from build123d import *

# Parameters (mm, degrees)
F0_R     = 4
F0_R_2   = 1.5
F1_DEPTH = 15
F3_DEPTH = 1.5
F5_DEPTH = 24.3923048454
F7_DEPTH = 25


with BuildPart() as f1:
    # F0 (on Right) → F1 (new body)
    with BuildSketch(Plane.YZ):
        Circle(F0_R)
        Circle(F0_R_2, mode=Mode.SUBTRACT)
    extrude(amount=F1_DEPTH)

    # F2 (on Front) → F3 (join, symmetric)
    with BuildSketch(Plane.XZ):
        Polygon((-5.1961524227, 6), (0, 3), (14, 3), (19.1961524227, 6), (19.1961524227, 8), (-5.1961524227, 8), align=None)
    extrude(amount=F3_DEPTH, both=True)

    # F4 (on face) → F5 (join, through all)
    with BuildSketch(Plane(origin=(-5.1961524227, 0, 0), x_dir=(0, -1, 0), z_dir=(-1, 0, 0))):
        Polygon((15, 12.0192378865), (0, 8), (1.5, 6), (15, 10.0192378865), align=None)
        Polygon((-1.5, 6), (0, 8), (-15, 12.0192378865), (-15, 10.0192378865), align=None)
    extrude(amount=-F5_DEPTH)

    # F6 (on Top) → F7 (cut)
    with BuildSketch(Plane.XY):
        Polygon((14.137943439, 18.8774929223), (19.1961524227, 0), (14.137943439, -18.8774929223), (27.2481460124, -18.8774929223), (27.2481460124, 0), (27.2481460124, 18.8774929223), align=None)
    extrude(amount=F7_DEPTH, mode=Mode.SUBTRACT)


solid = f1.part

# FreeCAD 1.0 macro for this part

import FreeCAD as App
import Part
import Sketcher
Q = App.Units.Quantity


def add_polygon(sketch, points):
    """Adds a closed chain of lines whose ends are joined by coincident constraints."""
    first, n = sketch.GeometryCount, len(points)
    for a, b in zip(points, points[1:] + points[:1]):
        sketch.addGeometry(Part.LineSegment(App.Vector(*a, 0), App.Vector(*b, 0)), False)
    for i in range(n):
        sketch.addConstraint(Sketcher.Constraint("Coincident", first + i, 2, first + (i + 1) % n, 1))

doc = App.newDocument("Part")
body = doc.addObject("PartDesign::Body", "Body")

# Sketch on YZ plane
sketch1 = doc.addObject("Sketcher::SketchObject", "Sketch")
body.addObject(sketch1)
sketch1.AttachmentSupport = (doc.YZ_Plane, [""])
sketch1.MapMode = "FlatFace"
sketch1.addGeometry(Part.Circle(App.Vector(0, 0, 0), App.Vector(0, 0, 1), 4), False)
sketch1.addGeometry(Part.Circle(App.Vector(0, 0, 0), App.Vector(0, 0, 1), 1.5), False)
sketch1.addConstraint(Sketcher.Constraint("Coincident", 0, 3, -1, 1))
sketch1.addConstraint(Sketcher.Constraint("Coincident", 1, 3, -1, 1))
sketch1.addConstraint(Sketcher.Constraint("Diameter", 0, Q("8 mm")))
sketch1.addConstraint(Sketcher.Constraint("Diameter", 1, Q("3 mm")))
pad1 = doc.addObject("PartDesign::Pad", "Pad")
body.addObject(pad1)
pad1.Profile = sketch1
pad1.Length = 15

# Sketch on XZ plane
sketch2 = doc.addObject("Sketcher::SketchObject", "Sketch001")
body.addObject(sketch2)
sketch2.AttachmentSupport = (doc.XZ_Plane, [""])
sketch2.MapMode = "FlatFace"
add_polygon(sketch2, [(-5.196152, 6), (0, 3), (14, 3), (19.196152, 6), (19.196152, 8), (-5.196152, 8)])  # lines 0-5
sketch2.addConstraint(Sketcher.Constraint("Horizontal", 1))
sketch2.addConstraint(Sketcher.Constraint("Vertical", 3))
sketch2.addConstraint(Sketcher.Constraint("Horizontal", 4))
sketch2.addConstraint(Sketcher.Constraint("Vertical", 5))
sketch2.addConstraint(Sketcher.Constraint("PointOnObject", 0, 2, -2))
sketch2.addConstraint(Sketcher.Constraint("Horizontal", 2, 2, 5, 2))
sketch2.addConstraint(Sketcher.Constraint("Equal", 0, 2))
sketch2.addConstraint(Sketcher.Constraint("DistanceX", 1, 1, 1, 2, Q("14 mm")))
sketch2.addConstraint(Sketcher.Constraint("DistanceY", 3, 1, 3, 2, Q("2 mm")))
sketch2.addConstraint(Sketcher.Constraint("Angle", 0, Q("-30 deg")))
sketch2.addConstraint(Sketcher.Constraint("Distance", 0, Q("6 mm")))
sketch2.addConstraint(Sketcher.Constraint("DistanceY", -1, 1, 0, 2, Q("3 mm")))
pad2 = doc.addObject("PartDesign::Pad", "Pad001")
body.addObject(pad2)
pad2.Profile = sketch2
pad2.Length = 3
pad2.Midplane = True

# Sketch on YZ plane
sketch3 = doc.addObject("Sketcher::SketchObject", "Sketch002")
body.addObject(sketch3)
sketch3.AttachmentSupport = (doc.YZ_Plane, [""])
sketch3.MapMode = "FlatFace"
sketch3.AttachmentOffset = App.Placement(App.Vector(0, 0, -5.196152), App.Rotation())
add_polygon(sketch3, [(-15, 12.019238), (0, 8), (-1.5, 6), (-15, 10.019238)])  # lines 0-3
add_polygon(sketch3, [(1.5, 6), (0, 8), (15, 12.019238), (15, 10.019238)])  # lines 4-7
sketch3.addConstraint(Sketcher.Constraint("Vertical", 3))
sketch3.addConstraint(Sketcher.Constraint("Vertical", 6))
sketch3.addConstraint(Sketcher.Constraint("Coincident", 4, 2, 0, 2))
sketch3.addConstraint(Sketcher.Constraint("Symmetric", 3, 2, 5, 2, -2))
sketch3.addConstraint(Sketcher.Constraint("Symmetric", 1, 2, 7, 2, -2))
sketch3.addConstraint(Sketcher.Constraint("PointOnObject", 0, 2, -2))
sketch3.addConstraint(Sketcher.Constraint("Horizontal", 2, 2, 6, 2))
sketch3.addConstraint(Sketcher.Constraint("DistanceY", 3, 1, 3, 2, Q("2 mm")))
sketch3.addConstraint(Sketcher.Constraint("Angle", 0, Q("-15 deg")))
sketch3.addConstraint(Sketcher.Constraint("DistanceY", -1, 1, 0, 2, Q("8 mm")))
sketch3.addConstraint(Sketcher.Constraint("DistanceY", -1, 1, 1, 2, Q("6 mm")))
sketch3.addConstraint(Sketcher.Constraint("DistanceX", 2, 2, -1, 1, Q("15 mm")))
sketch3.addConstraint(Sketcher.Constraint("DistanceX", 1, 2, 7, 2, Q("3 mm")))
pad3 = doc.addObject("PartDesign::Pad", "Pad002")
body.addObject(pad3)
pad3.Profile = sketch3
pad3.Length = 24.392305

# Sketch on XY plane
sketch4 = doc.addObject("Sketcher::SketchObject", "Sketch003")
body.addObject(sketch4)
sketch4.AttachmentSupport = (doc.XY_Plane, [""])
sketch4.MapMode = "FlatFace"
add_polygon(sketch4, [(14.137943, 18.877493), (19.196152, 0), (14.137943, -18.877493), (27.248146, -18.877493), (27.248146, 18.877493)])  # lines 0-4
sketch4.addConstraint(Sketcher.Constraint("Horizontal", 2))
sketch4.addConstraint(Sketcher.Constraint("Vertical", 3))
sketch4.addConstraint(Sketcher.Constraint("Horizontal", 4))
sketch4.addConstraint(Sketcher.Constraint("Symmetric", 1, 2, 4, 2, -1))
sketch4.addConstraint(Sketcher.Constraint("PointOnObject", 0, 2, -1))
sketch4.addConstraint(Sketcher.Constraint("Angle", 0, Q("-75 deg")))
sketch4.addConstraint(Sketcher.Constraint("Distance", 0, Q("19.543419 mm")))
sketch4.addConstraint(Sketcher.Constraint("DistanceX", 2, 1, 2, 2, Q("13.110203 mm")))
sketch4.addConstraint(Sketcher.Constraint("DistanceX", -1, 1, 0, 2, Q("19.196152 mm")))
pocket1 = doc.addObject("PartDesign::Pocket", "Pocket")
body.addObject(pocket1)
pocket1.Profile = sketch4
pocket1.Length = 25
pocket1.Reversed = True

doc.recompute()
